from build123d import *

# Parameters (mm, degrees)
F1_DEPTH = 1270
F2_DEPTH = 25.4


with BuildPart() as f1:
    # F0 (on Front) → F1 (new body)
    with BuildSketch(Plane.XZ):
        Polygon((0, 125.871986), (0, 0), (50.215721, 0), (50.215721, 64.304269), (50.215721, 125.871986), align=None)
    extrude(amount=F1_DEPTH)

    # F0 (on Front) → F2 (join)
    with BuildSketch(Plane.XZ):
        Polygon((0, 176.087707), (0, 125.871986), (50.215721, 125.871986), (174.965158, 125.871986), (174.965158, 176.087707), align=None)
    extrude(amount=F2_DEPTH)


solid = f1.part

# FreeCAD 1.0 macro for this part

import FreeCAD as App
import Part
import Sketcher

V = App.Vector
Q = App.Units.Quantity

doc = App.newDocument("Part")
body = doc.addObject("PartDesign::Body", "Body")

# Sketch on XZ plane
sketch1 = body.newObject("Sketcher::SketchObject", "Sketch")
sketch1.AttachmentSupport = (doc.getObject("XZ_Plane"), [""])
sketch1.MapMode = "FlatFace"
sketch1.addGeometry([
    Part.LineSegment(V(0, 126, 0), V(0, 0, 0)),
    Part.LineSegment(V(0, 0, 0), V(50, 0, 0)),
    Part.LineSegment(V(50, 0, 0), V(50, 126, 0)),
    Part.LineSegment(V(50, 126, 0), V(0, 126, 0)),
], False)
sketch1.addConstraint([
    Sketcher.Constraint("Coincident", 0, 2, 1, 1),
    Sketcher.Constraint("Coincident", 1, 2, 2, 1),
    Sketcher.Constraint("Coincident", 2, 2, 3, 1),
    Sketcher.Constraint("Coincident", 3, 2, 0, 1),
    Sketcher.Constraint("Vertical", 0),
    Sketcher.Constraint("Horizontal", 1),
    Sketcher.Constraint("Vertical", 2),
    Sketcher.Constraint("Horizontal", 3),
    Sketcher.Constraint("Coincident", 0, 2, -1, 1),
    Sketcher.Constraint("DistanceX", 1, 1, 1, 2, 50.215721),
    Sketcher.Constraint("DistanceY", 0, 2, 0, 1, 125.871986),
])
pad1 = body.newObject("PartDesign::Pad", "Pad")
pad1.Profile = sketch1
pad1.Length = Q("50 in")

# Sketch on XZ plane
sketch2 = body.newObject("Sketcher::SketchObject", "Sketch001")
sketch2.AttachmentSupport = (doc.getObject("XZ_Plane"), [""])
sketch2.MapMode = "FlatFace"
sketch2.addGeometry([
    Part.LineSegment(V(0, 176, 0), V(0, 126, 0)),
    Part.LineSegment(V(0, 126, 0), V(175, 126, 0)),
    Part.LineSegment(V(175, 126, 0), V(175, 176, 0)),
    Part.LineSegment(V(175, 176, 0), V(0, 176, 0)),
], False)
sketch2.addConstraint([
    Sketcher.Constraint("Coincident", 0, 2, 1, 1),
    Sketcher.Constraint("Coincident", 1, 2, 2, 1),
    Sketcher.Constraint("Coincident", 2, 2, 3, 1),
    Sketcher.Constraint("Coincident", 3, 2, 0, 1),
    Sketcher.Constraint("Vertical", 0),
    Sketcher.Constraint("Horizontal", 1),
    Sketcher.Constraint("Vertical", 2),
    Sketcher.Constraint("Horizontal", 3),
    Sketcher.Constraint("PointOnObject", 0, 2, -2),
    Sketcher.Constraint("DistanceX", 1, 1, 1, 2, 174.965158),
    Sketcher.Constraint("DistanceY", 0, 2, 0, 1, 50.215721),
    Sketcher.Constraint("DistanceY", -1, 1, 0, 2, 125.871986),
])
pad2 = body.newObject("PartDesign::Pad", "Pad001")
pad2.Profile = sketch2
pad2.Length = Q("1 in")

doc.recompute()
